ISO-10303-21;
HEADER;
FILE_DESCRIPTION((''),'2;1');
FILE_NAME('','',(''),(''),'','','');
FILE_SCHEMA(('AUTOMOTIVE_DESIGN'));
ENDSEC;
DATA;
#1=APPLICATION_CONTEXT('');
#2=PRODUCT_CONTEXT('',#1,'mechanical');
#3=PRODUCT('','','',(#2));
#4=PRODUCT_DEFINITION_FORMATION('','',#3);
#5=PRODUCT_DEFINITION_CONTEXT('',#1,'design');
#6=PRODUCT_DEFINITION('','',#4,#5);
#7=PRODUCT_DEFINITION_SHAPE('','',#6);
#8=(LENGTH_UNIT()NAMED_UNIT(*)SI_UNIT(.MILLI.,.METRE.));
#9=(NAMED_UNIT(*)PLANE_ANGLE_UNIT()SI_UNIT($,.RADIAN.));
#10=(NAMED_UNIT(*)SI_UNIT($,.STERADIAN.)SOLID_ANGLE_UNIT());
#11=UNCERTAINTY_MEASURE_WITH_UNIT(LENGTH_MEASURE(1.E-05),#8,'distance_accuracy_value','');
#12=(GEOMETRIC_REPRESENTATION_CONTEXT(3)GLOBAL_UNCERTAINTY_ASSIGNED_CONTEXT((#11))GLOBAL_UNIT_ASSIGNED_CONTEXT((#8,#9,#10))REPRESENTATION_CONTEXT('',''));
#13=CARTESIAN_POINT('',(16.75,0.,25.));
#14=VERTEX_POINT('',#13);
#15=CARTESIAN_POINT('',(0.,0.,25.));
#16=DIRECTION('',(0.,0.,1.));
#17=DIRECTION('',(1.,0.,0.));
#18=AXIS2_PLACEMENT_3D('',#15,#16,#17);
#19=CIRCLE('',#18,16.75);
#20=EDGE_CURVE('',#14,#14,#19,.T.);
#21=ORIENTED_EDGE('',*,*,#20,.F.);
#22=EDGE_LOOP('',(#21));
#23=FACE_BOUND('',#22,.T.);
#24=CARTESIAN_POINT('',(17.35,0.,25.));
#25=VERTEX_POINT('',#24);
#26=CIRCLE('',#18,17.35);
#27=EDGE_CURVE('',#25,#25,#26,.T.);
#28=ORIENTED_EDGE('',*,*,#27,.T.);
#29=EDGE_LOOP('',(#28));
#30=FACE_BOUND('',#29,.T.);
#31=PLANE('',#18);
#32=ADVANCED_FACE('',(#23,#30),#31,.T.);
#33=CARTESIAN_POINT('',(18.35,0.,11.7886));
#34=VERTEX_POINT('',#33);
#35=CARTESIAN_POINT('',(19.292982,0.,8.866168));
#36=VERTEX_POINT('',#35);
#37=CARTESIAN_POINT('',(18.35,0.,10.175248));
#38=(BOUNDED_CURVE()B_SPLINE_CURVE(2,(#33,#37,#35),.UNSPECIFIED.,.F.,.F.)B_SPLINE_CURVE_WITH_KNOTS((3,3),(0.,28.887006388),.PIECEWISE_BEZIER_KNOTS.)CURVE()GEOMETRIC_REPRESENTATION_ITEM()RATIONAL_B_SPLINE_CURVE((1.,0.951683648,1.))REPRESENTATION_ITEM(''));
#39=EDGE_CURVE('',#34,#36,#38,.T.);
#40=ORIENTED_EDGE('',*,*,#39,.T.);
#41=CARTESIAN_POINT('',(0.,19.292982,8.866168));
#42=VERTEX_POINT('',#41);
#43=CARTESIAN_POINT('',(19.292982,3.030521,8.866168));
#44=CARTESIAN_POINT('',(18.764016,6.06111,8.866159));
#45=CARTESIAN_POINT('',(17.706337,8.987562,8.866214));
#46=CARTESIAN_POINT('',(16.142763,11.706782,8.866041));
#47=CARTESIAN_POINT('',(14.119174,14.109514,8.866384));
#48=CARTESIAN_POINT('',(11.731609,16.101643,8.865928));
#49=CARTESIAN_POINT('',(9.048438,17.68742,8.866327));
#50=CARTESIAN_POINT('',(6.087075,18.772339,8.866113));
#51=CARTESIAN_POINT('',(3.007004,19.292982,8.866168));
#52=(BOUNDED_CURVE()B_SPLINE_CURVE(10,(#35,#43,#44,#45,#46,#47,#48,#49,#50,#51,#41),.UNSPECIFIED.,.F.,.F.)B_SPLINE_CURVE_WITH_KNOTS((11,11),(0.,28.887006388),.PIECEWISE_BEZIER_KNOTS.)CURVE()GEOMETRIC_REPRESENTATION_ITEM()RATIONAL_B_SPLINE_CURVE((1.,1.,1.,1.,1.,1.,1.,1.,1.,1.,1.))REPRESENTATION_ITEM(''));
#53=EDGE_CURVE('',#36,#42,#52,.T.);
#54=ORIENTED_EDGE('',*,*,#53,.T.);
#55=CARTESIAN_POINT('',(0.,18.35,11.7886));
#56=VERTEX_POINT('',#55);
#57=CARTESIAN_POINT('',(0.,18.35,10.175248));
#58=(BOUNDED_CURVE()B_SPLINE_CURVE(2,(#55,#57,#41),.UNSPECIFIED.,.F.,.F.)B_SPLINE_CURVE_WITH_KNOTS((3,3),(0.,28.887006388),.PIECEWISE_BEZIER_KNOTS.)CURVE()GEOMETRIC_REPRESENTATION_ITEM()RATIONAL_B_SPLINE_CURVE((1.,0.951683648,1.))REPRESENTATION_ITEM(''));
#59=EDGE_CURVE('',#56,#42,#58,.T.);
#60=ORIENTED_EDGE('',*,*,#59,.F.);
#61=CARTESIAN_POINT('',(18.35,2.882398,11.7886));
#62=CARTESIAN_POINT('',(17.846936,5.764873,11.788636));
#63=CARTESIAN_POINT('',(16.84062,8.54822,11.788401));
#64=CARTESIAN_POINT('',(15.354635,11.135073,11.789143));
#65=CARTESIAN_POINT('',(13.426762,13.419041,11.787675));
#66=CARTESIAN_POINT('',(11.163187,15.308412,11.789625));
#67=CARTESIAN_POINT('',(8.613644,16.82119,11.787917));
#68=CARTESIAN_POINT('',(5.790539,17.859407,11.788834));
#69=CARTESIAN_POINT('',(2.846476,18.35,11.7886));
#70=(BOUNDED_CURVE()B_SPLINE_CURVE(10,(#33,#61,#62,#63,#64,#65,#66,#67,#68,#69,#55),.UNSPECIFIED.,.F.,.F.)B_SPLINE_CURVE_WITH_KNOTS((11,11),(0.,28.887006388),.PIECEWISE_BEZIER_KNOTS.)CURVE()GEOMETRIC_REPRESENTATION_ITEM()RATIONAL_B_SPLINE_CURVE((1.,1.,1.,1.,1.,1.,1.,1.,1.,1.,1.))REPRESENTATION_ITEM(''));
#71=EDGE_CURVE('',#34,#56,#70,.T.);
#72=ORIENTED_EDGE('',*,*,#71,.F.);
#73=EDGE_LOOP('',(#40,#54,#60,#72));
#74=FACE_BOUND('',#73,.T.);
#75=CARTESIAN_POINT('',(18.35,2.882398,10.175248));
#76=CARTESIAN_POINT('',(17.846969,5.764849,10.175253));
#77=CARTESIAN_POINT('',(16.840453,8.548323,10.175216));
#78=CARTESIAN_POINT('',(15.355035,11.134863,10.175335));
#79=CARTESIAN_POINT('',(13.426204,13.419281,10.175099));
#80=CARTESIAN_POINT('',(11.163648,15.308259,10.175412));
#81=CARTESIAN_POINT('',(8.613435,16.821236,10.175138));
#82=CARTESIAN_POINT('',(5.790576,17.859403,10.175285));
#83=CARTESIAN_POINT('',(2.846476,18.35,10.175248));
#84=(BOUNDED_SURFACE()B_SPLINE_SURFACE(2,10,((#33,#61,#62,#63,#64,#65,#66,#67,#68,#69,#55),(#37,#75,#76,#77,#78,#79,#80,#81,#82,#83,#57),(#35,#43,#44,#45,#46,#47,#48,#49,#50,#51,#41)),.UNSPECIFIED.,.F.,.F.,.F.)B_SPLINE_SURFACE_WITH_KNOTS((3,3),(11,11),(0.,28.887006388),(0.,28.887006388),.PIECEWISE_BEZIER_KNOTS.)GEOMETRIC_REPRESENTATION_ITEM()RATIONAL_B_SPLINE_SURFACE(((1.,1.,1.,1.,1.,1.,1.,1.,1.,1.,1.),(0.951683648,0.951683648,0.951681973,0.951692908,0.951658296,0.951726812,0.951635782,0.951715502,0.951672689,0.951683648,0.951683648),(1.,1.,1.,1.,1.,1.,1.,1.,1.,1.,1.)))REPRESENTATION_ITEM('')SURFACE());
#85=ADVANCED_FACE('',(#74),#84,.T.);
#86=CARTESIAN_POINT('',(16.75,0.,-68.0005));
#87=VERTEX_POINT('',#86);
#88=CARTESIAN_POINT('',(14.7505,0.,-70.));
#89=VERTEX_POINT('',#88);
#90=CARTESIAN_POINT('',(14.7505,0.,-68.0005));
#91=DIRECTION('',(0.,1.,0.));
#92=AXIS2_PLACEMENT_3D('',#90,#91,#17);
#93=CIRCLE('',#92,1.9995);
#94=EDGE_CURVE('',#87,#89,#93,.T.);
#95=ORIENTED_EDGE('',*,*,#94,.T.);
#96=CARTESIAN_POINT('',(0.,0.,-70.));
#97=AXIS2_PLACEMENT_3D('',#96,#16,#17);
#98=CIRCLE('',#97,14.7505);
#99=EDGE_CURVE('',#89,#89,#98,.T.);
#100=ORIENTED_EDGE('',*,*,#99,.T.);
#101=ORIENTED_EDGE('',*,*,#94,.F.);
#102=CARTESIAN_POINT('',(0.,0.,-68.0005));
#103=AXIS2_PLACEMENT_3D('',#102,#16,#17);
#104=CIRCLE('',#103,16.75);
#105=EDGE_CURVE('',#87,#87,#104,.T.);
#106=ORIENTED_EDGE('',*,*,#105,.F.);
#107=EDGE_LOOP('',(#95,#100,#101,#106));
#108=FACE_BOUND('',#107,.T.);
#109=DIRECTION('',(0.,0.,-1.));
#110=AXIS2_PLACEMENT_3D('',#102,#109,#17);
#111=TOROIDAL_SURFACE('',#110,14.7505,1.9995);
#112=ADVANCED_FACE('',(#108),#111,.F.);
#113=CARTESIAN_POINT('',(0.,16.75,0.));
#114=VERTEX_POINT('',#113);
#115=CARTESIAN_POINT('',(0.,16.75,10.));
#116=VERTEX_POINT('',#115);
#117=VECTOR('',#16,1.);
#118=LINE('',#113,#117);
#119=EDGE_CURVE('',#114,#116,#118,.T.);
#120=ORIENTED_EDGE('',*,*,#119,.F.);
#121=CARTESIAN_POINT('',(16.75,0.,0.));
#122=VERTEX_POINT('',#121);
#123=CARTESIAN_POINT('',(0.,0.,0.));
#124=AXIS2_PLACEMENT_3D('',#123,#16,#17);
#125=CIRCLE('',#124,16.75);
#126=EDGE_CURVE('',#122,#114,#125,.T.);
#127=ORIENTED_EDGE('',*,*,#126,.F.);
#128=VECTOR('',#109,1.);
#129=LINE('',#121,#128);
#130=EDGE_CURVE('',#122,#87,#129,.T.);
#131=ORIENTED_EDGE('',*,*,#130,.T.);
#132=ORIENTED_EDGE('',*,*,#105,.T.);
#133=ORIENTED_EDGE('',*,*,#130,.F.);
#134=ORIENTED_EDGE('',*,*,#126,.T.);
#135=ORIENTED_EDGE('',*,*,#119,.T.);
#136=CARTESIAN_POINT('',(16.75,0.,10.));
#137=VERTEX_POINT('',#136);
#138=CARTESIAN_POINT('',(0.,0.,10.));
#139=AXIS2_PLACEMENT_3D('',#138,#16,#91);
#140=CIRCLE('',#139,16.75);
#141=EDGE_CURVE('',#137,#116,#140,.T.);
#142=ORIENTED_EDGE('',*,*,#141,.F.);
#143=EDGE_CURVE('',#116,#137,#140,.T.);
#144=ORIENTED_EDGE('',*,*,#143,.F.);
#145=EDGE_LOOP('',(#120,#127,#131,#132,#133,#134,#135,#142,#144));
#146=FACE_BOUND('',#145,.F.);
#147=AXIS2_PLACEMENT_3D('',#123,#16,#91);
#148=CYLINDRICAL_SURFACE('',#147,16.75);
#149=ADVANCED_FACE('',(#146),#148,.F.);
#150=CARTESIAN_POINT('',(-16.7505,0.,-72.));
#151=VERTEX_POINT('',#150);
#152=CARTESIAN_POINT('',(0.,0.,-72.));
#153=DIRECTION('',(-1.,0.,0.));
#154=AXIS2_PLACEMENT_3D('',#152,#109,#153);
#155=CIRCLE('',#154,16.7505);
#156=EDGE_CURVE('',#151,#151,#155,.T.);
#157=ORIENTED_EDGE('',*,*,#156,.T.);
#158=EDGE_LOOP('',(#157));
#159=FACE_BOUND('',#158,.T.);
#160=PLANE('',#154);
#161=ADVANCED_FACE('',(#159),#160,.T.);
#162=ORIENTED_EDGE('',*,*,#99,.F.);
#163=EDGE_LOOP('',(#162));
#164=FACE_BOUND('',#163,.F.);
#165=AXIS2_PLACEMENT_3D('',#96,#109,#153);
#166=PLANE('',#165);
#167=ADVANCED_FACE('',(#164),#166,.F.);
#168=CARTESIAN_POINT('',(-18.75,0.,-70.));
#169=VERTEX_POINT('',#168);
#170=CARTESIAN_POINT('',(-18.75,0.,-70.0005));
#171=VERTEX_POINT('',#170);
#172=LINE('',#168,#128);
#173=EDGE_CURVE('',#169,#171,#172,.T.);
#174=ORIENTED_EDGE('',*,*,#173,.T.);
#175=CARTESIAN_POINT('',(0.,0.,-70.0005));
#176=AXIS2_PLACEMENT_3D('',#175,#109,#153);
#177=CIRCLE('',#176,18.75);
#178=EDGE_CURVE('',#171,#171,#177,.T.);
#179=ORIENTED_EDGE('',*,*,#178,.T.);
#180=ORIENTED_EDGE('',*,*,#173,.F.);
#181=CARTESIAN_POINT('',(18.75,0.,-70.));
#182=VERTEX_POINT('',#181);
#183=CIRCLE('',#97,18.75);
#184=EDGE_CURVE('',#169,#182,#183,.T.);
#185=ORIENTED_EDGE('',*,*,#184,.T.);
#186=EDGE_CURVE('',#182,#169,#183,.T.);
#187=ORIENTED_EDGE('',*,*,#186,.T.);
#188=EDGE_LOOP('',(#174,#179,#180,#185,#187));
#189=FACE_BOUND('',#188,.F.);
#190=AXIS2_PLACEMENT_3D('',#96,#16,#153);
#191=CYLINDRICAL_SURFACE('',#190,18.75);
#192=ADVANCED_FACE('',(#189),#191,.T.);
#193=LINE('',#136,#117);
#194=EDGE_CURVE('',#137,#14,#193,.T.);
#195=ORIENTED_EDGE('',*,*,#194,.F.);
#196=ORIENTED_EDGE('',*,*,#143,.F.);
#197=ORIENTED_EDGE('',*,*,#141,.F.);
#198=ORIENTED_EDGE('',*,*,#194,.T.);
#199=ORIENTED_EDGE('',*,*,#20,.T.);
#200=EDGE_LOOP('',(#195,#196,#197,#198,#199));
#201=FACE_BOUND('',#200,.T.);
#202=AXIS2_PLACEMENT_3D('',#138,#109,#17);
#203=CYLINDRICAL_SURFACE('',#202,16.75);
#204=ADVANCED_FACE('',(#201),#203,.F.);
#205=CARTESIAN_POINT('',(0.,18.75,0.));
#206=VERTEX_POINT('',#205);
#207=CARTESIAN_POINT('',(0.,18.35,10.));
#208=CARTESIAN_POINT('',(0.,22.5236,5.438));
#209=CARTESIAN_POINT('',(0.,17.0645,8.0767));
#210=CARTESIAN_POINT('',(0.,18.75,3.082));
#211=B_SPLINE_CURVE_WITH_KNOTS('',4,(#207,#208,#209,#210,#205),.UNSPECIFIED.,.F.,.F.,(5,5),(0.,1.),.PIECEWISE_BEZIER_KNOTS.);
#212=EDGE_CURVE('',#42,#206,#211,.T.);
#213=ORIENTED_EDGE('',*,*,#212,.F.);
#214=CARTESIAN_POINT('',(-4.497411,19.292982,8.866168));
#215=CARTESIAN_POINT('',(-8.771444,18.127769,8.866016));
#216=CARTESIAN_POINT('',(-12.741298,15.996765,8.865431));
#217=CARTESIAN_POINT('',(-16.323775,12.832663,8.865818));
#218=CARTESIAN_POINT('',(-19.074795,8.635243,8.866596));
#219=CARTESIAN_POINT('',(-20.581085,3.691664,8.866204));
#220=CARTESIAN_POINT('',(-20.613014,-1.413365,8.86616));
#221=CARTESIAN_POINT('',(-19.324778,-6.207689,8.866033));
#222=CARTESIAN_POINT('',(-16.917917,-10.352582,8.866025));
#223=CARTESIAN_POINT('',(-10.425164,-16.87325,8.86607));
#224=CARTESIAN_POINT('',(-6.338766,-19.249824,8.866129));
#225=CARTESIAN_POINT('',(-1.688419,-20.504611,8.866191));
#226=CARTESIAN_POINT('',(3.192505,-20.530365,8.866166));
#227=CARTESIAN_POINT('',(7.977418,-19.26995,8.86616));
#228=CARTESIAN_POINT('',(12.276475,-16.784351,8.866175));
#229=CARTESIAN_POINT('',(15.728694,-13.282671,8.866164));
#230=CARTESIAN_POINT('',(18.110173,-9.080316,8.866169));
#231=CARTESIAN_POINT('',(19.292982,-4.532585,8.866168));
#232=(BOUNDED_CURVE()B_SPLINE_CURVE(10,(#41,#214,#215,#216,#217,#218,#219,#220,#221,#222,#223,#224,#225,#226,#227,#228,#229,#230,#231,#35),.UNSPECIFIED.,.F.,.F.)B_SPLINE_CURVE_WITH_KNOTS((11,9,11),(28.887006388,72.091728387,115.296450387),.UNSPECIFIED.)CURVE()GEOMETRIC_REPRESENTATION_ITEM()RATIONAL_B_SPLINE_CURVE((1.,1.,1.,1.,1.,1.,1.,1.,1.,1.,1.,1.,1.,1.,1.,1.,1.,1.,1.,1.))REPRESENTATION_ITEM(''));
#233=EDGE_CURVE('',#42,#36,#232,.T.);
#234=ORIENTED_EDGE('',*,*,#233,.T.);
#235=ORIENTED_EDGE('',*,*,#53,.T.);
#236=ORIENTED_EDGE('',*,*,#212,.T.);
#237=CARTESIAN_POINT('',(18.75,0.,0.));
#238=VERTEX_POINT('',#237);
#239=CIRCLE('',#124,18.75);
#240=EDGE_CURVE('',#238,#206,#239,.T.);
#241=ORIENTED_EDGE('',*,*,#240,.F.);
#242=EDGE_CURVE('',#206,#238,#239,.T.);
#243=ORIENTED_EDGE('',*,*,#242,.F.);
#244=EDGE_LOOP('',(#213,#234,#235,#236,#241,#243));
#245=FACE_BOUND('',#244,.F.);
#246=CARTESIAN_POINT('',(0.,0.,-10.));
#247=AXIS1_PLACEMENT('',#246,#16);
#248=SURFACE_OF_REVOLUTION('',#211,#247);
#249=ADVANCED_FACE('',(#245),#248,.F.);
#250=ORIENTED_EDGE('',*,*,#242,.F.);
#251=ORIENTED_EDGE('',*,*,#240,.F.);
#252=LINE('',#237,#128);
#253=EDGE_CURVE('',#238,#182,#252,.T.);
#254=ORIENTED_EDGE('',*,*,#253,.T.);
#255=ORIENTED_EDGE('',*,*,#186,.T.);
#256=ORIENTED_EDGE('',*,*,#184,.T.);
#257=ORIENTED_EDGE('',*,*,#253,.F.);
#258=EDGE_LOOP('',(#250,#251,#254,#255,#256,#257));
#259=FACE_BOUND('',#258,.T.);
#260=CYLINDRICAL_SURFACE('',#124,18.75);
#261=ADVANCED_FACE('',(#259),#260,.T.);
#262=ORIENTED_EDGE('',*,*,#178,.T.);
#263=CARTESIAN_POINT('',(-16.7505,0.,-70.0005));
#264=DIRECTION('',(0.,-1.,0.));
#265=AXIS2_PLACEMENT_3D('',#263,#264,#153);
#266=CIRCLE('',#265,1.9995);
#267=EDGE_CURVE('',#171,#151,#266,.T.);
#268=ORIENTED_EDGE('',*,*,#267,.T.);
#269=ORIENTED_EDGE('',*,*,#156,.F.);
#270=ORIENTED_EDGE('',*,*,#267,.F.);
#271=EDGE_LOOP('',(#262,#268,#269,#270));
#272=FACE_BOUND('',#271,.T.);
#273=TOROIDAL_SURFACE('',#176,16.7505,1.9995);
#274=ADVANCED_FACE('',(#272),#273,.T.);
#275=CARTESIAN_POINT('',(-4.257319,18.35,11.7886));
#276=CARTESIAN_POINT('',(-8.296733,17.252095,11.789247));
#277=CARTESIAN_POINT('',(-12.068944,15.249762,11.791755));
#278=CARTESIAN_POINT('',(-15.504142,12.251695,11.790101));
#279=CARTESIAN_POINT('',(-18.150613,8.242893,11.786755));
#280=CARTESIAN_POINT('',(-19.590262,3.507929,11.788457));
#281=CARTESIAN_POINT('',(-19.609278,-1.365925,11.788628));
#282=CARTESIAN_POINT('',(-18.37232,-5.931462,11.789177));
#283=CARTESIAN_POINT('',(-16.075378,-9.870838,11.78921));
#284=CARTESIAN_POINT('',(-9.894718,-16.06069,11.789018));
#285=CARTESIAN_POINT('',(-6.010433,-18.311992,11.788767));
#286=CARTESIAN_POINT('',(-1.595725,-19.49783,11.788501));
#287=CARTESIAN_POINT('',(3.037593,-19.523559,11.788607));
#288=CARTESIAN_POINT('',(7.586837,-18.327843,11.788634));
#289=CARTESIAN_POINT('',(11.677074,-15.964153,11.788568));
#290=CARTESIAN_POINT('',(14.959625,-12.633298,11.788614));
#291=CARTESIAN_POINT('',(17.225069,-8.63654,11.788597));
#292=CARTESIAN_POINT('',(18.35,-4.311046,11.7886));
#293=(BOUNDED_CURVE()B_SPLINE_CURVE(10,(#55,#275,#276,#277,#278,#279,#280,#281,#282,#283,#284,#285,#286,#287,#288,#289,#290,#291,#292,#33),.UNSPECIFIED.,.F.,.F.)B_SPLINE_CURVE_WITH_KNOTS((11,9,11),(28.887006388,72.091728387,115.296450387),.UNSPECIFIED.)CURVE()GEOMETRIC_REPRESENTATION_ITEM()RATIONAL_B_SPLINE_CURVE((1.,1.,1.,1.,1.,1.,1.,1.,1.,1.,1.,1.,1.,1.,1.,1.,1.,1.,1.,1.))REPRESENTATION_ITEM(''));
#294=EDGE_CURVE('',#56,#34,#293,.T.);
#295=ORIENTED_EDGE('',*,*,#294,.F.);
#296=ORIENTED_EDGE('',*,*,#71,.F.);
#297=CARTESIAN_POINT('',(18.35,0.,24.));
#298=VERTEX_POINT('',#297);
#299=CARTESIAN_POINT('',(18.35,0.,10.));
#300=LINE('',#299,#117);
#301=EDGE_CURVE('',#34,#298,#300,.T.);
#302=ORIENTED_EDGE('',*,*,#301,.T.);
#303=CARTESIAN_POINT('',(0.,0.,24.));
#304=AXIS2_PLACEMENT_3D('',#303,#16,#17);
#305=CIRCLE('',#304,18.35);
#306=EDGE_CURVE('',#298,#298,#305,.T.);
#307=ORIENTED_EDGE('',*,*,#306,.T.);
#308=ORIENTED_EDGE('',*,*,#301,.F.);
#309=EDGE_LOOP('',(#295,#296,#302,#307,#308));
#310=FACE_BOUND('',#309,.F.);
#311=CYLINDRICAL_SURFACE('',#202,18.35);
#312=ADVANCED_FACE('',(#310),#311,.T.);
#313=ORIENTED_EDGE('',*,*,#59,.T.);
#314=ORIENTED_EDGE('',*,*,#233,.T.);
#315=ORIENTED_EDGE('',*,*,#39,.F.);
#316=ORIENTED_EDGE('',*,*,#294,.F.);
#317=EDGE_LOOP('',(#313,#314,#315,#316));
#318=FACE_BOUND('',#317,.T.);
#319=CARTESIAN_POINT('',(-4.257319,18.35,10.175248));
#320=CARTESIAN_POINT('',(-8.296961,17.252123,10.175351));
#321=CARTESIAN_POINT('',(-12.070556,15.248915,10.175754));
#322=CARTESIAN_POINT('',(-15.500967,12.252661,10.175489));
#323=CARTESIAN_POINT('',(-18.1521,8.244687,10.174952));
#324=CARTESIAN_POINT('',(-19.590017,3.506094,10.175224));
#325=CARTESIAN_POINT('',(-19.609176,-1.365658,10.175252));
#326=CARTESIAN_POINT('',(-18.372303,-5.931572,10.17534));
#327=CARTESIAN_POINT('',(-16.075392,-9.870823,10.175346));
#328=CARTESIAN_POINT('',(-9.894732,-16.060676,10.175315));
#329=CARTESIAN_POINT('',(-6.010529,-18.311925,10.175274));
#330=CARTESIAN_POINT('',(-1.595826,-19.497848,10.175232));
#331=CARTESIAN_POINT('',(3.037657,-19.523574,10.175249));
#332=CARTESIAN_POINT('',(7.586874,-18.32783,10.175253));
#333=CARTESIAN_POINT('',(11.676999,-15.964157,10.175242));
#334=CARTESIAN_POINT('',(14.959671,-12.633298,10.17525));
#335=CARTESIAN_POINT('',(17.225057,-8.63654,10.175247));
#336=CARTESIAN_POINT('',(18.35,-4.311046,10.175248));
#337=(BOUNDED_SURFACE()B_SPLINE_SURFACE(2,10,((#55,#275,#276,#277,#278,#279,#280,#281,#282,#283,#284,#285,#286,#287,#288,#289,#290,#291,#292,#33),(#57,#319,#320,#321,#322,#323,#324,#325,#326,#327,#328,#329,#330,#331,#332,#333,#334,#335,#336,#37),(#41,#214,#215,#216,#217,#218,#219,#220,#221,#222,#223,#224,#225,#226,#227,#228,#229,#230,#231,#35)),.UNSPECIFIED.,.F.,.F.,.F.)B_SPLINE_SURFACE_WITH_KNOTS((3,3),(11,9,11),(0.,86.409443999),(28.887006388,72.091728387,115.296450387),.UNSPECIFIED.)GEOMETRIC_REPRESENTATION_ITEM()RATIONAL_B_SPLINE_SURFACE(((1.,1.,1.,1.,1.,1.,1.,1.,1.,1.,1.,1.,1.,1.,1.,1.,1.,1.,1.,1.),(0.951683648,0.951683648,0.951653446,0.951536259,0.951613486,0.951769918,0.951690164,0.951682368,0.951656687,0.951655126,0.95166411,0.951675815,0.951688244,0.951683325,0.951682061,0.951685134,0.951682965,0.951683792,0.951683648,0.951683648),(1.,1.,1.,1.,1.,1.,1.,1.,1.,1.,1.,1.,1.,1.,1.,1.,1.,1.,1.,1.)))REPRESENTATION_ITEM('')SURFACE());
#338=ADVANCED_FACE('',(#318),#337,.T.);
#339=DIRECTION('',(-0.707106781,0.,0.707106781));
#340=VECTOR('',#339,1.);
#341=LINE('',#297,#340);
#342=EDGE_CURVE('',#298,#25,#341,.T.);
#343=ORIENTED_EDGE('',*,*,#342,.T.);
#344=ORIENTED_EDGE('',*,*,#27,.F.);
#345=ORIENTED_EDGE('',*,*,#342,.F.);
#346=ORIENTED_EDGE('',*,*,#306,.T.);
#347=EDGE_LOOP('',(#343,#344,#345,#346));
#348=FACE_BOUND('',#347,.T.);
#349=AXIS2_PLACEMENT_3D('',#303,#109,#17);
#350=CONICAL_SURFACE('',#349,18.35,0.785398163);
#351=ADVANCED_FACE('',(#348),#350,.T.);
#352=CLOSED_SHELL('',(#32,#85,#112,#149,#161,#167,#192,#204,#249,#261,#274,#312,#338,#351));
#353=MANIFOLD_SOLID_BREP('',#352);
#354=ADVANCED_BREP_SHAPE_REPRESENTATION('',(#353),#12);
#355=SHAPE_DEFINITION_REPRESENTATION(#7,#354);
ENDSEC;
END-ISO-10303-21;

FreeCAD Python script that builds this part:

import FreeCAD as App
import Part
import Sketcher


def edges_at(feature, points):
    """Names of the edges that pass closest to the given points."""
    edges = feature.Shape.Edges
    near = lambda p: min(range(len(edges)), key=lambda i: edges[i].distToShape(Part.Vertex(*p))[0])
    return sorted({f"Edge{near(p) + 1}" for p in points})

doc = App.newDocument("Part")
body = doc.addObject("PartDesign::Body", "Body")

# Sketch on XY plane
sketch1 = body.newObject("Sketcher::SketchObject", "Sketch")
sketch1.AttachmentSupport = (doc.getObject("XY_Plane"), [""])
sketch1.MapMode = "FlatFace"
sketch1.addGeometry([
    Part.Circle(App.Vector(0, 0, 0), App.Vector(0, 0, 1), 19),
    Part.Circle(App.Vector(0, 0, 0), App.Vector(0, 0, 1), 17),
], False)
sketch1.addConstraint([
    Sketcher.Constraint("Coincident", 0, 3, -1, 1),
    Sketcher.Constraint("Coincident", 1, 3, -1, 1),
    Sketcher.Constraint("Diameter", 0, 37.5),
    Sketcher.Constraint("Diameter", 1, 33.5),
])
pad1 = body.newObject("PartDesign::Pad", "Pad")
pad1.Profile = sketch1
pad1.Length = 70
pad1.Reversed = True

# Sketch on XY plane
sketch2 = body.newObject("Sketcher::SketchObject", "Sketch001")
sketch2.AttachmentSupport = (doc.getObject("XY_Plane"), [""])
sketch2.MapMode = "FlatFace"
sketch2.AttachmentOffset = App.Placement(App.Vector(0, 0, -70), App.Rotation())
sketch2.addGeometry(Part.Circle(App.Vector(0, 0, 0), App.Vector(0, 0, 1), 19), False)
sketch2.addConstraint([
    Sketcher.Constraint("Coincident", 0, 3, -1, 1),
    Sketcher.Constraint("Diameter", 0, 37.5),
])
pad2 = body.newObject("PartDesign::Pad", "Pad001")
pad2.Profile = sketch2
pad2.Length = 2
pad2.Reversed = True
doc.recompute()

fillet = body.newObject("PartDesign::Fillet", "Fillet")
fillet.Base = (pad2, edges_at(pad2, [(-16.75, 0, -70), (18.75, 0, -72)]))
fillet.Radius = 2

# Sketch on YZ plane
sketch3 = body.newObject("Sketcher::SketchObject", "Sketch002")
sketch3.AttachmentSupport = (doc.getObject("YZ_Plane"), [""])
sketch3.MapMode = "FlatFace"
sketch3.addGeometry([
    Part.LineSegment(App.Vector(16.75, 10, 0), App.Vector(16.75, 0, 0)),
    Part.LineSegment(App.Vector(16.75, 0, 0), App.Vector(18.75, 0, 0)),
    Part.BSplineCurve([App.Vector(18.35, 10, 0), App.Vector(22.5236, 5.438, 0), App.Vector(17.0645, 8.0767, 0), App.Vector(18.75, 3.082, 0), App.Vector(18.75, 0, 0)], [5, 5], [0, 1], False, 4, [1, 1, 1, 1, 1], False),
    Part.LineSegment(App.Vector(18.35, 10, 0), App.Vector(16.75, 10, 0)),
], False)
sketch3.addConstraint([
    Sketcher.Constraint("Block", 2),
    Sketcher.Constraint("Coincident", 0, 2, 1, 1),
    Sketcher.Constraint("Coincident", 1, 2, 2, 2),
    Sketcher.Constraint("Coincident", 2, 1, 3, 1),
    Sketcher.Constraint("Coincident", 3, 2, 0, 1),
    Sketcher.Constraint("Vertical", 0),
    Sketcher.Constraint("Horizontal", 1),
    Sketcher.Constraint("Horizontal", 3),
    Sketcher.Constraint("DistanceX", 1, 1, 1, 2, 2.0),
])
revolution = body.newObject("PartDesign::Revolution", "Revolution")
revolution.Profile = sketch3
revolution.ReferenceAxis = (sketch3, ["V_Axis"])
revolution.Angle = 360

# Sketch on XY plane
sketch4 = body.newObject("Sketcher::SketchObject", "Sketch003")
sketch4.AttachmentSupport = (doc.getObject("XY_Plane"), [""])
sketch4.MapMode = "FlatFace"
sketch4.AttachmentOffset = App.Placement(App.Vector(0, 0, 10), App.Rotation())
sketch4.addGeometry([
    Part.Circle(App.Vector(0, 0, 0), App.Vector(0, 0, 1), 18),
    Part.Circle(App.Vector(0, 0, 0), App.Vector(0, 0, 1), 17),
], False)
sketch4.addConstraint([
    Sketcher.Constraint("Coincident", 0, 3, -1, 1),
    Sketcher.Constraint("Coincident", 1, 3, -1, 1),
    Sketcher.Constraint("Diameter", 0, 36.7),
    Sketcher.Constraint("Diameter", 1, 33.5),
])
pad3 = body.newObject("PartDesign::Pad", "Pad002")
pad3.Profile = sketch4
pad3.Length = 15
doc.recompute()

fillet2 = body.newObject("PartDesign::Fillet", "Fillet001")
fillet2.Base = (pad3, edges_at(pad3, [(12.975, 12.975, 10), (-12.975, -12.975, 10)]))
fillet2.Radius = 5
doc.recompute()

chamfer = body.newObject("PartDesign::Chamfer", "Chamfer")
chamfer.Base = (fillet2, edges_at(fillet2, [(-18.35, 0, 25)]))
chamfer.Size = 1

doc.recompute()
